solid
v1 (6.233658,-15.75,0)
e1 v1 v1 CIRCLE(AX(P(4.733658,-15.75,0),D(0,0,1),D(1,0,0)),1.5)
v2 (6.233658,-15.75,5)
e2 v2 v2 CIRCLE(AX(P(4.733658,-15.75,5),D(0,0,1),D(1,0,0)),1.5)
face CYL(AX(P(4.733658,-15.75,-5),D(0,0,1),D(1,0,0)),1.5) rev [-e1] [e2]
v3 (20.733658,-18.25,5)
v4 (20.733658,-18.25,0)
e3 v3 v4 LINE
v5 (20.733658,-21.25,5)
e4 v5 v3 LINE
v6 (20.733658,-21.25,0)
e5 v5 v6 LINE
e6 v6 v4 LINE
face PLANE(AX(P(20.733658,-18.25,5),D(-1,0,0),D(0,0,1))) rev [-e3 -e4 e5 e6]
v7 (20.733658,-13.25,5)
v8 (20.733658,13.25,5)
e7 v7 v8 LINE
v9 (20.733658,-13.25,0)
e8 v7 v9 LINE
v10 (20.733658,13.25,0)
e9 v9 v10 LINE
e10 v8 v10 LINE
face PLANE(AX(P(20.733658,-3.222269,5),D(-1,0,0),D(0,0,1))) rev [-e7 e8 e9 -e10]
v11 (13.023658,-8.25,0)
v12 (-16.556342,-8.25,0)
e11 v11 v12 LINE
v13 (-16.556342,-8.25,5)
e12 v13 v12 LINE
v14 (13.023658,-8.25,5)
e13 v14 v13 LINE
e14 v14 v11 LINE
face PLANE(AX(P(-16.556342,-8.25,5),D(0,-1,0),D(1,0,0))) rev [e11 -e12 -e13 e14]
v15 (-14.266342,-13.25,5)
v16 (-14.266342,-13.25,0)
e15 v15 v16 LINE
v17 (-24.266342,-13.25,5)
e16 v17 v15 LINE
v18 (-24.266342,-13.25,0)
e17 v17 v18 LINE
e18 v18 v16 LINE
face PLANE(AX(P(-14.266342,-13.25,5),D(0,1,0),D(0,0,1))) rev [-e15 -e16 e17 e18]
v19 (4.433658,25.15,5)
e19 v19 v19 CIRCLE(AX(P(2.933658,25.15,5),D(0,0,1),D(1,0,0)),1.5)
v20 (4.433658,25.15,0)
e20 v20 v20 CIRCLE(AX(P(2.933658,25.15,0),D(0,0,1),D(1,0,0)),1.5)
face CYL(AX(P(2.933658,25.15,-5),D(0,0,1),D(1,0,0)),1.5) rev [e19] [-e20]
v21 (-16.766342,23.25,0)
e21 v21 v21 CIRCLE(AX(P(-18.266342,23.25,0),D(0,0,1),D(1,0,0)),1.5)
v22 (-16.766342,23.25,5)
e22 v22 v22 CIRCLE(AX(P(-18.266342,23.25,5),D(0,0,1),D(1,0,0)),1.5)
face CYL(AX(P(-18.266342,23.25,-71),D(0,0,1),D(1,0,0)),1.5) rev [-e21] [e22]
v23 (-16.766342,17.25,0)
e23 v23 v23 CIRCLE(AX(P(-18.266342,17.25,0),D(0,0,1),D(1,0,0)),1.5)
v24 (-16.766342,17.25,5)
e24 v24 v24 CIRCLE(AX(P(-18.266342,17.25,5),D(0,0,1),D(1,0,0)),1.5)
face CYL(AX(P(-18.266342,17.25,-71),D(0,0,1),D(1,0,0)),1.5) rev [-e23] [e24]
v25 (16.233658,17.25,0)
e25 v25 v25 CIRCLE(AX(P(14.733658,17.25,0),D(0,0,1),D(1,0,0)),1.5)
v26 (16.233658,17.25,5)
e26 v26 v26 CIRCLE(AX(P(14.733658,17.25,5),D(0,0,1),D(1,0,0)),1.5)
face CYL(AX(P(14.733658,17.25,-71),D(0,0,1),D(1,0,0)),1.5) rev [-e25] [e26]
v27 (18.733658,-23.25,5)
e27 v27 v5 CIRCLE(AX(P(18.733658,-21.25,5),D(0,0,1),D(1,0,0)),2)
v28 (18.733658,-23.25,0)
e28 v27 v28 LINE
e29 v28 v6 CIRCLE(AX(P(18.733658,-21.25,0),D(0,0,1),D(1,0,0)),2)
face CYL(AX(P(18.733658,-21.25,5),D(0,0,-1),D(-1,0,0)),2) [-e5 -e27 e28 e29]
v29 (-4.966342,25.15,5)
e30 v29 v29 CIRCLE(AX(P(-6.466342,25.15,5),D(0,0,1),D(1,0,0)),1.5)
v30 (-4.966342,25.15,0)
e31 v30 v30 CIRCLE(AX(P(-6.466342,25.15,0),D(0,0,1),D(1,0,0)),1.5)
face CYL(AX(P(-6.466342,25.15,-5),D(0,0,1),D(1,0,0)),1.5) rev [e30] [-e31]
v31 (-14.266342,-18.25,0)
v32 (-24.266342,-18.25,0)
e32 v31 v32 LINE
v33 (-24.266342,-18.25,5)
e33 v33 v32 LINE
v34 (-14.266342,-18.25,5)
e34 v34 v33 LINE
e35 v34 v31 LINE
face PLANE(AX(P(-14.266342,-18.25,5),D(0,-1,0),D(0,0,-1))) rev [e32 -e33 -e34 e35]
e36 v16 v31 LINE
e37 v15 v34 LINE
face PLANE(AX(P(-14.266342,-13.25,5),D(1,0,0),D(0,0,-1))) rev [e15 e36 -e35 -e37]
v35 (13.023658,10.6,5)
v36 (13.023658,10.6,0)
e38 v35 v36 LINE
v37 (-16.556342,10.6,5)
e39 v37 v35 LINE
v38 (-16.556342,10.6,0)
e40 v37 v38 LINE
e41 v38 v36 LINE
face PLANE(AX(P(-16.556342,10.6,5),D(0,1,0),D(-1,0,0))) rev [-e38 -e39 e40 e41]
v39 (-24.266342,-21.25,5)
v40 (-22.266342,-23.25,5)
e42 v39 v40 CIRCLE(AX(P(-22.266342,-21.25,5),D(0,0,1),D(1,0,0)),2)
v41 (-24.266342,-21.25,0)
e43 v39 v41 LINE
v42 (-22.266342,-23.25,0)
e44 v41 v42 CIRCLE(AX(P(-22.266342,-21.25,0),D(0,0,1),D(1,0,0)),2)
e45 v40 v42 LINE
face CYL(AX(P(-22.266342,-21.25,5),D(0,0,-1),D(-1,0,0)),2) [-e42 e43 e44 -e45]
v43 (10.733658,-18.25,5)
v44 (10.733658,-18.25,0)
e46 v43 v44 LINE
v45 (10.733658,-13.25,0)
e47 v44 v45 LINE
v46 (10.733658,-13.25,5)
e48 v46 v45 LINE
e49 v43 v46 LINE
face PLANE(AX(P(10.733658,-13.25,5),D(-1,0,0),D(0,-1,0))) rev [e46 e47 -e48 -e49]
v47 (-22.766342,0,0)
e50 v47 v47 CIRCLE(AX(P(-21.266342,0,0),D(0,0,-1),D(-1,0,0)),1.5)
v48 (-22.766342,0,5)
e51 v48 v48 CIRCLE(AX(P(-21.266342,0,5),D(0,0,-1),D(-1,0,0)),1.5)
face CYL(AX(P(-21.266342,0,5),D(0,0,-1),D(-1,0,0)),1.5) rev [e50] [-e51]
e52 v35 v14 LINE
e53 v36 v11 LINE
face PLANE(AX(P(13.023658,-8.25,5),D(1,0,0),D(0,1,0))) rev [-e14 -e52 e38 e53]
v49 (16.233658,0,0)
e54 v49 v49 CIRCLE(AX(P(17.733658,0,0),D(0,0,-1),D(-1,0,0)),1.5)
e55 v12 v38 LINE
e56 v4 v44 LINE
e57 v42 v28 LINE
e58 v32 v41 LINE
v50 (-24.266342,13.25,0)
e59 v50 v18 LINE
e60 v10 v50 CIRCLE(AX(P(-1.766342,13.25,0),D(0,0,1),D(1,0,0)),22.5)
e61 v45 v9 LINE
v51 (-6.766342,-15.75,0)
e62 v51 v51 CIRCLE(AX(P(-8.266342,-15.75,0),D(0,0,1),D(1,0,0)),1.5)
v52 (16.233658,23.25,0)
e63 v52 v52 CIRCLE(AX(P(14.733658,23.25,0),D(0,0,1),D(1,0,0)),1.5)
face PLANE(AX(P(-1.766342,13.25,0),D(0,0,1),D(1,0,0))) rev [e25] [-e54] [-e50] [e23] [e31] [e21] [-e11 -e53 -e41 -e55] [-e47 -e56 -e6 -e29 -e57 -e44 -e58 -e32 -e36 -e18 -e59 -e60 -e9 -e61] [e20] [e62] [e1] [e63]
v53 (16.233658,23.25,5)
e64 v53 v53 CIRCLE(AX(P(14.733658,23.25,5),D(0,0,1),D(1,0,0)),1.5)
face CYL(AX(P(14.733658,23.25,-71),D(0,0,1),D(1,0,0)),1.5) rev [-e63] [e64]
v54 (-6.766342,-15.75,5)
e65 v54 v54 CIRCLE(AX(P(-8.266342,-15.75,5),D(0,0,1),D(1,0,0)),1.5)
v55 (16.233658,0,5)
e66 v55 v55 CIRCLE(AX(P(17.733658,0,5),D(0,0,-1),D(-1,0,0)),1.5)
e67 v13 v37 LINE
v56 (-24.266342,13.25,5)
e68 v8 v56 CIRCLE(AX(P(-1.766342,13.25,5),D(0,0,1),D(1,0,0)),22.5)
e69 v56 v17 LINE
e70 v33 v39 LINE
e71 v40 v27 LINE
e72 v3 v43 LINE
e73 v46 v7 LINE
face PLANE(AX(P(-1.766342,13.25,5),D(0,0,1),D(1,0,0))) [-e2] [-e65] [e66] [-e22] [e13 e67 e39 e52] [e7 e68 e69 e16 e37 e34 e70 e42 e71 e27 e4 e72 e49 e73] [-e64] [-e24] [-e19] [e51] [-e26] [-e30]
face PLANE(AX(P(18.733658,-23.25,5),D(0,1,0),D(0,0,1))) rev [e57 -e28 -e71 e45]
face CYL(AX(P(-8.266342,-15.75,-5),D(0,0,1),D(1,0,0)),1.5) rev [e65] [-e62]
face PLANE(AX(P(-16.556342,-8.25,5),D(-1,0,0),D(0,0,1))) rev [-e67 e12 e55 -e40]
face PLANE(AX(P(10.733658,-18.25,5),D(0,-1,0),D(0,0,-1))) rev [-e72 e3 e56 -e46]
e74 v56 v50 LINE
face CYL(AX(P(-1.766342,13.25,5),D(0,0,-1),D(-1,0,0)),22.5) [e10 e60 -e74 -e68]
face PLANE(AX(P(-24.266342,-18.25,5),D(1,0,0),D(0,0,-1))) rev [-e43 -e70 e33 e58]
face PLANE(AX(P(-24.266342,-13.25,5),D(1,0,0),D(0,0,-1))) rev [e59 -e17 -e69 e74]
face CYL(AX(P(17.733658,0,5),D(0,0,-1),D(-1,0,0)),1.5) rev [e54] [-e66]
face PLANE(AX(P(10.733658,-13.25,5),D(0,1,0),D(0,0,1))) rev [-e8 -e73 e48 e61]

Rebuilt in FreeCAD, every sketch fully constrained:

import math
import FreeCAD as App
import Part
import Sketcher

V = App.Vector

doc = App.newDocument("Part")
params = doc.addObject("Spreadsheet::Sheet", "Params")
for row, (alias, value) in enumerate([
    ("sketch1_radius", "2 mm"),
    ("sketch1_radius2", "22.5 mm"),
    ("sketch1_width", "10 mm"),
    ("sketch1_height", "5 mm"),
    ("sketch1_height2", "3 mm"),
    ("pad1_length", "5 mm"),
    ("sketch2_width", "29.58 mm"),
    ("sketch2_height", "18.85 mm"),
    ("pocket1_length", "5 mm"),
    ("sketch3_diameter", "3 mm"),
    ("pocket2_length", "5 mm"),
    ("sketch4_diameter", "3 mm"),
    ("pocket3_length", "10 mm"),
    ("sketch5_diameter", "3 mm"),
    ("pocket4_length", "10 mm"),
    ("sketch6_diameter", "3 mm"),
    ("pocket5_length", "76 mm"),
], start=1):
    params.set(f"A{row}", alias)
    params.set(f"B{row}", "=" + value)
    params.setAlias(f"B{row}", alias)

body = doc.addObject("PartDesign::Body", "Body")

sketch1 = body.newObject("Sketcher::SketchObject", "Sketch")
sketch1.AttachmentSupport = (doc.getObject("XY_Plane"), [""])
sketch1.MapMode = "FlatFace"
sketch1.addGeometry([
    Part.ArcOfCircle(Part.Circle(V(-1.8, 13.2, 0), V(0, 0, 1), 22.5), math.radians(0), math.radians(180)),
    Part.LineSegment(V(-24.3, 13.2, 0), V(-24.3, -13.2, 0)),
    Part.LineSegment(V(-24.3, -13.2, 0), V(-14.3, -13.2, 0)),
    Part.LineSegment(V(-14.3, -13.2, 0), V(-14.3, -18.2, 0)),
    Part.LineSegment(V(-14.3, -18.2, 0), V(-24.3, -18.2, 0)),
    Part.LineSegment(V(-24.3, -18.2, 0), V(-24.3, -21.2, 0)),
    Part.ArcOfCircle(Part.Circle(V(-22.3, -21.2, 0), V(0, 0, 1), 2), math.radians(-180), math.radians(-90)),
    Part.LineSegment(V(-22.3, -23.2, 0), V(18.7, -23.2, 0)),
    Part.ArcOfCircle(Part.Circle(V(18.7, -21.2, 0), V(0, 0, 1), 2), math.radians(-90), math.radians(0)),
    Part.LineSegment(V(20.7, -21.2, 0), V(20.7, -18.2, 0)),
    Part.LineSegment(V(20.7, -18.2, 0), V(10.7, -18.2, 0)),
    Part.LineSegment(V(10.7, -18.2, 0), V(10.7, -13.2, 0)),
    Part.LineSegment(V(10.7, -13.2, 0), V(20.7, -13.2, 0)),
    Part.LineSegment(V(20.7, -13.2, 0), V(20.7, 13.2, 0)),
], False)
sketch1.addConstraint([
    Sketcher.Constraint("Tangent", 0, 2, 1, 1),
    Sketcher.Constraint("Coincident", 1, 2, 2, 1),
    Sketcher.Constraint("Coincident", 2, 2, 3, 1),
    Sketcher.Constraint("Coincident", 3, 2, 4, 1),
    Sketcher.Constraint("Coincident", 4, 2, 5, 1),
    Sketcher.Constraint("Tangent", 5, 2, 6, 1),
    Sketcher.Constraint("Tangent", 6, 2, 7, 1),
    Sketcher.Constraint("Tangent", 7, 2, 8, 1),
    Sketcher.Constraint("Tangent", 8, 2, 9, 1),
    Sketcher.Constraint("Coincident", 9, 2, 10, 1),
    Sketcher.Constraint("Coincident", 10, 2, 11, 1),
    Sketcher.Constraint("Coincident", 11, 2, 12, 1),
    Sketcher.Constraint("Coincident", 12, 2, 13, 1),
    Sketcher.Constraint("Tangent", 13, 2, 0, 1),
    Sketcher.Constraint("Vertical", 1),
    Sketcher.Constraint("Horizontal", 2),
    Sketcher.Constraint("Vertical", 3),
    Sketcher.Constraint("Horizontal", 4),
    Sketcher.Constraint("Vertical", 5),
    Sketcher.Constraint("Horizontal", 7),
    Sketcher.Constraint("Vertical", 9),
    Sketcher.Constraint("Horizontal", 10),
    Sketcher.Constraint("Vertical", 11),
    Sketcher.Constraint("Horizontal", 12),
    Sketcher.Constraint("Vertical", 13),
    Sketcher.Constraint("Equal", 6, 8),
    Sketcher.Constraint("Horizontal", 4, 2, 9, 2),
    Sketcher.Constraint("Horizontal", 2, 2, 11, 2),
    Sketcher.Constraint("Vertical", 1, 2, 4, 2),
    Sketcher.Constraint("Vertical", 9, 2, 12, 2),
    Sketcher.Constraint("Equal", 4, 10),
    Sketcher.Constraint("Radius", 6, 2.0),
    Sketcher.Constraint("Radius", 0, 22.5),
    Sketcher.Constraint("DistanceX", 2, 1, 2, 2, 10.0),
    Sketcher.Constraint("DistanceY", 3, 2, 3, 1, 5.0),
    Sketcher.Constraint("DistanceY", 5, 2, 5, 1, 3.0),
    Sketcher.Constraint("DistanceY", 1, 2, 1, 1, 26.5),
    Sketcher.Constraint("DistanceY", -1, 1, 0, 3, 13.25),
    Sketcher.Constraint("DistanceX", 0, 3, -1, 1, 1.766342),
])
sketch1.setExpression("Constraints[31]", "Params.sketch1_radius")
sketch1.setExpression("Constraints[32]", "Params.sketch1_radius2")
sketch1.setExpression("Constraints[33]", "Params.sketch1_width")
sketch1.setExpression("Constraints[34]", "Params.sketch1_height")
sketch1.setExpression("Constraints[35]", "Params.sketch1_height2")
pad1 = body.newObject("PartDesign::Pad", "Pad")
pad1.Profile = sketch1
pad1.setExpression("Length", "Params.pad1_length")

sketch2 = body.newObject("Sketcher::SketchObject", "Sketch001")
sketch2.AttachmentSupport = (doc.getObject("XY_Plane"), [""])
sketch2.MapMode = "FlatFace"
sketch2.addGeometry([
    Part.LineSegment(V(13, 11, 0), V(13, -8, 0)),
    Part.LineSegment(V(13, -8, 0), V(-17, -8, 0)),
    Part.LineSegment(V(-17, -8, 0), V(-17, 11, 0)),
    Part.LineSegment(V(-17, 11, 0), V(13, 11, 0)),
], False)
sketch2.addConstraint([
    Sketcher.Constraint("Coincident", 0, 2, 1, 1),
    Sketcher.Constraint("Coincident", 1, 2, 2, 1),
    Sketcher.Constraint("Coincident", 2, 2, 3, 1),
    Sketcher.Constraint("Coincident", 3, 2, 0, 1),
    Sketcher.Constraint("Vertical", 0),
    Sketcher.Constraint("Horizontal", 1),
    Sketcher.Constraint("Vertical", 2),
    Sketcher.Constraint("Horizontal", 3),
    Sketcher.Constraint("DistanceX", 1, 2, 1, 1, 29.58),
    Sketcher.Constraint("DistanceY", 0, 2, 0, 1, 18.85),
    Sketcher.Constraint("DistanceY", -1, 1, 2, 2, 10.6),
    Sketcher.Constraint("DistanceX", -1, 1, 0, 2, 13.023658),
])
sketch2.setExpression("Constraints[8]", "Params.sketch2_width")
sketch2.setExpression("Constraints[9]", "Params.sketch2_height")
pocket1 = body.newObject("PartDesign::Pocket", "Pocket")
pocket1.Profile = sketch2
pocket1.setExpression("Length", "Params.pocket1_length")
pocket1.Reversed = True

sketch3 = body.newObject("Sketcher::SketchObject", "Sketch002")
sketch3.AttachmentSupport = (doc.getObject("XY_Plane"), [""])
sketch3.MapMode = "FlatFace"
sketch3.addGeometry([
    Part.Circle(V(17.7, 0, 0), V(0, 0, 1), 1.5),
    Part.Circle(V(-21.3, 0, 0), V(0, 0, 1), 1.5),
], False)
sketch3.addConstraint([
    Sketcher.Constraint("Equal", 0, 1),
    Sketcher.Constraint("PointOnObject", 0, 3, -1),
    Sketcher.Constraint("PointOnObject", 1, 3, -1),
    Sketcher.Constraint("Diameter", 0, 3.0),
    Sketcher.Constraint("DistanceX", 1, 3, 0, 3, 39.0),
    Sketcher.Constraint("DistanceX", -1, 1, 0, 3, 17.733658),
])
sketch3.setExpression("Constraints[3]", "Params.sketch3_diameter")
pocket2 = body.newObject("PartDesign::Pocket", "Pocket001")
pocket2.Profile = sketch3
pocket2.setExpression("Length", "Params.pocket2_length")
pocket2.Reversed = True

sketch4 = body.newObject("Sketcher::SketchObject", "Sketch003")
sketch4.AttachmentSupport = (doc.getObject("XY_Plane"), [""])
sketch4.MapMode = "FlatFace"
sketch4.AttachmentOffset = App.Placement(V(0, 0, 5), App.Rotation())
sketch4.addGeometry([
    Part.Circle(V(4.7, -15.8, 0), V(0, 0, 1), 1.5),
    Part.Circle(V(-8.3, -15.8, 0), V(0, 0, 1), 1.5),
], False)
sketch4.addConstraint([
    Sketcher.Constraint("Equal", 0, 1),
    Sketcher.Constraint("Horizontal", 0, 3, 1, 3),
    Sketcher.Constraint("Diameter", 0, 3.0),
    Sketcher.Constraint("DistanceX", 1, 3, 0, 3, 13.0),
    Sketcher.Constraint("DistanceY", 0, 3, -1, 1, 15.75),
    Sketcher.Constraint("DistanceX", -1, 1, 0, 3, 4.733658),
])
sketch4.setExpression("Constraints[2]", "Params.sketch4_diameter")
pocket3 = body.newObject("PartDesign::Pocket", "Pocket002")
pocket3.Profile = sketch4
pocket3.setExpression("Length", "Params.pocket3_length")

sketch5 = body.newObject("Sketcher::SketchObject", "Sketch004")
sketch5.AttachmentSupport = (doc.getObject("XY_Plane"), [""])
sketch5.MapMode = "FlatFace"
sketch5.AttachmentOffset = App.Placement(V(0, 0, 5), App.Rotation())
sketch5.addGeometry([
    Part.Circle(V(2.9, 25.1, 0), V(0, 0, 1), 1.5),
    Part.Circle(V(-6.5, 25.1, 0), V(0, 0, 1), 1.5),
], False)
sketch5.addConstraint([
    Sketcher.Constraint("Equal", 0, 1),
    Sketcher.Constraint("Horizontal", 0, 3, 1, 3),
    Sketcher.Constraint("Diameter", 0, 3.0),
    Sketcher.Constraint("DistanceX", 1, 3, 0, 3, 9.4),
    Sketcher.Constraint("DistanceY", -1, 1, 0, 3, 25.15),
    Sketcher.Constraint("DistanceX", -1, 1, 0, 3, 2.933658),
])
sketch5.setExpression("Constraints[2]", "Params.sketch5_diameter")
pocket4 = body.newObject("PartDesign::Pocket", "Pocket003")
pocket4.Profile = sketch5
pocket4.setExpression("Length", "Params.pocket4_length")

sketch6 = body.newObject("Sketcher::SketchObject", "Sketch005")
sketch6.AttachmentSupport = (doc.getObject("XY_Plane"), [""])
sketch6.MapMode = "FlatFace"
sketch6.AttachmentOffset = App.Placement(V(0, 0, 5), App.Rotation())
sketch6.addGeometry([
    Part.Circle(V(14.7, 17.2, 0), V(0, 0, 1), 1.5),
    Part.Circle(V(14.7, 23.2, 0), V(0, 0, 1), 1.5),
    Part.Circle(V(-18.3, 23.2, 0), V(0, 0, 1), 1.5),
    Part.Circle(V(-18.3, 17.2, 0), V(0, 0, 1), 1.5),
], False)
sketch6.addConstraint([
    Sketcher.Constraint("Equal", 0, 1),
    Sketcher.Constraint("Equal", 1, 2),
    Sketcher.Constraint("Equal", 2, 3),
    Sketcher.Constraint("Horizontal", 1, 3, 2, 3),
    Sketcher.Constraint("Horizontal", 0, 3, 3, 3),
    Sketcher.Constraint("Vertical", 0, 3, 1, 3),
    Sketcher.Constraint("Vertical", 2, 3, 3, 3),
    Sketcher.Constraint("Diameter", 0, 3.0),
    Sketcher.Constraint("DistanceY", 0, 3, 1, 3, 6.0),
    Sketcher.Constraint("DistanceX", 2, 3, 1, 3, 33.0),
    Sketcher.Constraint("DistanceY", -1, 1, 0, 3, 17.25),
    Sketcher.Constraint("DistanceX", -1, 1, 0, 3, 14.733658),
])
sketch6.setExpression("Constraints[7]", "Params.sketch6_diameter")
pocket5 = body.newObject("PartDesign::Pocket", "Pocket004")
pocket5.Profile = sketch6
pocket5.setExpression("Length", "Params.pocket5_length")

doc.recompute()
